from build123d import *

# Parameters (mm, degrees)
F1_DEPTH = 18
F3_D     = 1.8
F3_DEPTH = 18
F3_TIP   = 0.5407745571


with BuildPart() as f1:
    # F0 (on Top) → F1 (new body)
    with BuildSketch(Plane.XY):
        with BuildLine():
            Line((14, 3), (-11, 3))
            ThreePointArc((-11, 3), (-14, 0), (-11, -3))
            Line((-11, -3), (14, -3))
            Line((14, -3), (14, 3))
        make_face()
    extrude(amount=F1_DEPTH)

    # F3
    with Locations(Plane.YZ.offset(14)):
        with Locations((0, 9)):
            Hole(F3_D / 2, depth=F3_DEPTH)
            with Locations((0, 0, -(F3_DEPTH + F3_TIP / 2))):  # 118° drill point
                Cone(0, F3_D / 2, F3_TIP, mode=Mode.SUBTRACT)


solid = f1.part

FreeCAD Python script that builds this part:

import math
import FreeCAD as App
import Part
import Sketcher
from FreeCAD import Vector

doc = App.newDocument("Part")
body = doc.addObject("PartDesign::Body", "Body")

# Sketch on XY plane
sketch1 = body.newObject("Sketcher::SketchObject", "Sketch")
sketch1.AttachmentSupport = (doc.getObject("XY_Plane"), [""])
sketch1.MapMode = "FlatFace"
sketch1.addGeometry([
    Part.LineSegment(Vector(14, 3, 0), Vector(-11, 3, 0)),
    Part.ArcOfCircle(Part.Circle(Vector(-11, 0, 0), Vector(0, 0, 1), 3), math.radians(90), math.radians(270)),
    Part.LineSegment(Vector(-11, -3, 0), Vector(14, -3, 0)),
    Part.LineSegment(Vector(14, -3, 0), Vector(14, 3, 0)),
], False)
sketch1.addConstraint([
    Sketcher.Constraint("Tangent", 0, 2, 1, 1),
    Sketcher.Constraint("Tangent", 1, 2, 2, 1),
    Sketcher.Constraint("Coincident", 2, 2, 3, 1),
    Sketcher.Constraint("Coincident", 3, 2, 0, 1),
    Sketcher.Constraint("Horizontal", 0),
    Sketcher.Constraint("Horizontal", 2),
    Sketcher.Constraint("Vertical", 3),
    Sketcher.Constraint("PointOnObject", 1, 3, -1),
    Sketcher.Constraint("Radius", 1, 3.0),
    Sketcher.Constraint("DistanceX", 0, 2, 0, 1, 25.0),
    Sketcher.Constraint("DistanceX", 1, 3, -1, 1, 11.0),
])
pad1 = body.newObject("PartDesign::Pad", "Pad")
pad1.Profile = sketch1
pad1.Length = 18

# Sketch on YZ plane
sketch2 = body.newObject("Sketcher::SketchObject", "Sketch001")
sketch2.AttachmentSupport = (doc.getObject("YZ_Plane"), [""])
sketch2.MapMode = "FlatFace"
sketch2.AttachmentOffset = App.Placement(Vector(0, 0, 14), App.Rotation())
sketch2.addGeometry(Part.Circle(Vector(0, 9, 0), Vector(0, 0, 1), 0.9), False)
sketch2.addConstraint([
    Sketcher.Constraint("PointOnObject", 0, 3, -2),
    Sketcher.Constraint("Diameter", 0, 1.8),
    Sketcher.Constraint("DistanceY", -1, 1, 0, 3, 9.0),
])
doc.recompute()
hole = body.newObject("PartDesign::Hole", "Hole")
hole.Profile = sketch2
hole.ThreadType = "None"
hole.Diameter = 1.8
hole.DepthType = "Dimension"
hole.Depth = 18
hole.DrillPoint = "Angled"
hole.DrillPointAngle = 118

doc.recompute()
